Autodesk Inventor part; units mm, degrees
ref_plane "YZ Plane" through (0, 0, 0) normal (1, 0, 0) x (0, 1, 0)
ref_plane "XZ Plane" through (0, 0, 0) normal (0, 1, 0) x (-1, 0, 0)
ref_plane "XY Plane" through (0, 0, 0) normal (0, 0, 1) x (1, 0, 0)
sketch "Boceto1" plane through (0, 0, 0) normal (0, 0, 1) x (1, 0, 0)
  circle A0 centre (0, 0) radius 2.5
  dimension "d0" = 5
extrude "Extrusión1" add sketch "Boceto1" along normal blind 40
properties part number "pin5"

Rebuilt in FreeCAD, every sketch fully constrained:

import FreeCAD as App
import Part
import Sketcher

doc = App.newDocument("Part")
body = doc.addObject("PartDesign::Body", "Body")

sketch1 = body.newObject("Sketcher::SketchObject", "Sketch")
sketch1.AttachmentSupport = (doc.getObject("XY_Plane"), [""])
sketch1.MapMode = "FlatFace"
sketch1.addGeometry(Part.Circle(App.Vector(0, 0, 0), App.Vector(0, 0, 1), 2.5), False)
sketch1.addConstraint(Sketcher.Constraint("Coincident", 0, 3, -1, 1))
sketch1.addConstraint(Sketcher.Constraint("Diameter", 0, 5.0))
pad1 = body.newObject("PartDesign::Pad", "Pad")
pad1.Profile = sketch1
pad1.Length = 40

doc.recompute()
